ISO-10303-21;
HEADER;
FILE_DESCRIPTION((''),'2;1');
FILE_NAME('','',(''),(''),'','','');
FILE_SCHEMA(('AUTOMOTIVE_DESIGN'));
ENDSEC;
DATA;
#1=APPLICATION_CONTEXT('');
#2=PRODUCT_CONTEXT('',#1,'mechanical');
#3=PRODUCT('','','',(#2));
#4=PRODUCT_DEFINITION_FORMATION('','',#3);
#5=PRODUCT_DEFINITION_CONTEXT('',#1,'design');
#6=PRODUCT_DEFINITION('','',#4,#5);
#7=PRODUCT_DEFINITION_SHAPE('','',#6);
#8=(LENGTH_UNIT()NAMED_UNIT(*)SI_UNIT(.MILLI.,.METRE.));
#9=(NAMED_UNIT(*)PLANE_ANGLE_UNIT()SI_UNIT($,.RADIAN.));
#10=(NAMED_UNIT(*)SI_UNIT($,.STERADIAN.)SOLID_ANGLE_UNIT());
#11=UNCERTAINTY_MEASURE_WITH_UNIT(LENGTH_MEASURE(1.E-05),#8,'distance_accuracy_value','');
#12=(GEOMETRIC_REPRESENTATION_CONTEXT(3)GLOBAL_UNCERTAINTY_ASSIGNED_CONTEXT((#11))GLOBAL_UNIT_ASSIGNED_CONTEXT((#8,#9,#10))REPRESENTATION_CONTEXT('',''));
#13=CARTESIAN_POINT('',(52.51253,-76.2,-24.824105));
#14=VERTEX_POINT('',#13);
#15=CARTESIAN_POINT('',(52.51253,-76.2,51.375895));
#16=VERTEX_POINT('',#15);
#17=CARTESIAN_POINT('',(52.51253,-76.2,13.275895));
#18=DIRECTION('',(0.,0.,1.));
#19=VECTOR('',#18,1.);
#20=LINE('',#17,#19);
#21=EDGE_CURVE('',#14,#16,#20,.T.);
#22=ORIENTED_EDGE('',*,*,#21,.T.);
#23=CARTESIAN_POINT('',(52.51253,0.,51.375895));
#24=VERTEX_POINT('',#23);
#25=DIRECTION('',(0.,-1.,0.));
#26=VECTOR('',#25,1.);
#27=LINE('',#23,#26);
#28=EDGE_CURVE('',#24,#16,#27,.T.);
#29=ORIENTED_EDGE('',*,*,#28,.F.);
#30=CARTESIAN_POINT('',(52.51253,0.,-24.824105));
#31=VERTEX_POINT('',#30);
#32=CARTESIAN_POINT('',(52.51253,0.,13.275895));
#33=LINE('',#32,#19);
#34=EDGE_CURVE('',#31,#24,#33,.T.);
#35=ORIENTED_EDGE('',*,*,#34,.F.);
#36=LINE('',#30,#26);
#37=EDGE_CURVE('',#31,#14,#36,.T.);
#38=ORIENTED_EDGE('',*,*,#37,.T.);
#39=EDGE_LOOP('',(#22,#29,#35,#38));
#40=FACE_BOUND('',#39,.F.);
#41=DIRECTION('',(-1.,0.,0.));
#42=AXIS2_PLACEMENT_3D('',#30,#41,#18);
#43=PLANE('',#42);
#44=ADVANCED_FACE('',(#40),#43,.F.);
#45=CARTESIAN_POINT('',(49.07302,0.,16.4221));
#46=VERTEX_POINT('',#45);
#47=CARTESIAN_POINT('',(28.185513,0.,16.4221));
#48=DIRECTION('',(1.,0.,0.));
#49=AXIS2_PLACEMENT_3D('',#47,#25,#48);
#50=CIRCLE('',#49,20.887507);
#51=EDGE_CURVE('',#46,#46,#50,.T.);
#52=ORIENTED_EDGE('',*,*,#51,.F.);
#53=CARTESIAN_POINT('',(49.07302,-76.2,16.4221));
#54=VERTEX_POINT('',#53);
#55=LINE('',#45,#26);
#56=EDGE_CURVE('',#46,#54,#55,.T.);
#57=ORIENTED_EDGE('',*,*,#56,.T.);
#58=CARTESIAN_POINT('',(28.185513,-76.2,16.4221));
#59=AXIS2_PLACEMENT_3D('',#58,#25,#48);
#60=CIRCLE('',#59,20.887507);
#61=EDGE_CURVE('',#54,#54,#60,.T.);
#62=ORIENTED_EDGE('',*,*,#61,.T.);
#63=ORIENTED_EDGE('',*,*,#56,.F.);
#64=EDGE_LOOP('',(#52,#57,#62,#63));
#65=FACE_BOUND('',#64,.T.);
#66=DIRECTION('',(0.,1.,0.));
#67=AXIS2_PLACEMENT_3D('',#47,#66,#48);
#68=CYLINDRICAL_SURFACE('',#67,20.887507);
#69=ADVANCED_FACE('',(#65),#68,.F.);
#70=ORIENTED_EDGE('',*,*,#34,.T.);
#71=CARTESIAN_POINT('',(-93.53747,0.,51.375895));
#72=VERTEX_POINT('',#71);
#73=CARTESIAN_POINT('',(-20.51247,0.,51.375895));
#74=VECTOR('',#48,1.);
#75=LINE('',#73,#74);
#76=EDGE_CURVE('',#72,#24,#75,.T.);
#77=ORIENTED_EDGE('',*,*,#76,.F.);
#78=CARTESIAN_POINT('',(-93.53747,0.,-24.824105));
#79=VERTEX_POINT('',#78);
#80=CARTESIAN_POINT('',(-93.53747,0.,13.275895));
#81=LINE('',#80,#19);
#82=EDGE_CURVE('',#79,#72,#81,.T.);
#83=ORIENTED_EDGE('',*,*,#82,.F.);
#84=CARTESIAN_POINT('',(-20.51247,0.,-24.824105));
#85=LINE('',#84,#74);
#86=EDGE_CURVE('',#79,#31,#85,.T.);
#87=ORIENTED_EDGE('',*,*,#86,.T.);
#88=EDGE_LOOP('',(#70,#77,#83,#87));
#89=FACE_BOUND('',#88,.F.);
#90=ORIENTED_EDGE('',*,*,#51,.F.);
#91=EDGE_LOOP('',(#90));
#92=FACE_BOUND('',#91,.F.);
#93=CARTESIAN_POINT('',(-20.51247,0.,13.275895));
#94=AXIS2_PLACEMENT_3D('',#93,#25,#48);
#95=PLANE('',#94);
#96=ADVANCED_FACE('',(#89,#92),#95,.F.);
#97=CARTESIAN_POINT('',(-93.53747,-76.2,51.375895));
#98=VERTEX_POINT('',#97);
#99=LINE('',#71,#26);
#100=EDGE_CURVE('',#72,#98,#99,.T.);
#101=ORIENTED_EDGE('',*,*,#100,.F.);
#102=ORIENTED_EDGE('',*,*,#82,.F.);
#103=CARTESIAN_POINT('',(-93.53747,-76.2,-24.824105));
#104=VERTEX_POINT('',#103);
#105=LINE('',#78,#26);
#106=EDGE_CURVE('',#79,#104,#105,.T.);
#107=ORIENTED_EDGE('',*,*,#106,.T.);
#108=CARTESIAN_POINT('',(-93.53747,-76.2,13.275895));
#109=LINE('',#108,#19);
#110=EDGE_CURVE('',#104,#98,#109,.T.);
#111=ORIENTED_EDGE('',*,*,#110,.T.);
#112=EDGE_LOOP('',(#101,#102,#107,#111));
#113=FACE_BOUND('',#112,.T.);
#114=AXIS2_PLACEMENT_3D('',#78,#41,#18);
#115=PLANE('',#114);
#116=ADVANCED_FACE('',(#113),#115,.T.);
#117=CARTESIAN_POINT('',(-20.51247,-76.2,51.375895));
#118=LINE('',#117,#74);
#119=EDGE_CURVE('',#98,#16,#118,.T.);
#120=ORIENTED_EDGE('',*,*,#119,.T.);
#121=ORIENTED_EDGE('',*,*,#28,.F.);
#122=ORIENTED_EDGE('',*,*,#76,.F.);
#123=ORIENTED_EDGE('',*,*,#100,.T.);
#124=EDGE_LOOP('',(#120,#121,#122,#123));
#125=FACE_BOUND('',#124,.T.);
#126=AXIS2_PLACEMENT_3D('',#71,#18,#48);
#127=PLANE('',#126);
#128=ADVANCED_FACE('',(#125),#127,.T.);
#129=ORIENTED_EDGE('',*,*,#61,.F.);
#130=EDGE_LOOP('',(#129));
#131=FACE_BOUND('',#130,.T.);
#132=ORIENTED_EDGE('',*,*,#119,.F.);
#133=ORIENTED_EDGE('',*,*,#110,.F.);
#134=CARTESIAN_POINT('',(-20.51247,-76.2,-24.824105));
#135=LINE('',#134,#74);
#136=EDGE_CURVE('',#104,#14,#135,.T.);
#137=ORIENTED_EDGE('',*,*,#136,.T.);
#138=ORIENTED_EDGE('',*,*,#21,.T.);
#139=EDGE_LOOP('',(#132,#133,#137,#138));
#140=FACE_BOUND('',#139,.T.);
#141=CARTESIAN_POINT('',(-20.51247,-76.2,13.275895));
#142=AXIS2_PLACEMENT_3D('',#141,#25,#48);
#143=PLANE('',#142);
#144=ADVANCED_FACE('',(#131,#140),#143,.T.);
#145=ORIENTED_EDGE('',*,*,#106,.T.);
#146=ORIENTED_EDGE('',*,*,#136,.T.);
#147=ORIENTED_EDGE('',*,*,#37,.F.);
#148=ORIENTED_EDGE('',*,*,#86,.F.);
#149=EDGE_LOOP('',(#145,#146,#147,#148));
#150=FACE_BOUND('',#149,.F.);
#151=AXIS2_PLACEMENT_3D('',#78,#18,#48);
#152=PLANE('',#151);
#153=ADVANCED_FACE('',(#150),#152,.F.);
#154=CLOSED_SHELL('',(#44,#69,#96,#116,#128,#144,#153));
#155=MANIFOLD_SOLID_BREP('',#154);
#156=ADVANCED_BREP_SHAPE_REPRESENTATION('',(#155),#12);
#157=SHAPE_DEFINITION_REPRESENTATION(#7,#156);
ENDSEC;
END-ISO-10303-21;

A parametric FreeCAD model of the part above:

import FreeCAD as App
import Part
import Sketcher
from FreeCAD import Vector
Q = App.Units.Quantity

doc = App.newDocument("Part")
body = doc.addObject("PartDesign::Body", "Body")

sketch1 = body.newObject("Sketcher::SketchObject", "Sketch")
sketch1.AttachmentSupport = (doc.getObject("XZ_Plane"), [""])
sketch1.MapMode = "FlatFace"
sketch1.addGeometry([
    Part.LineSegment(Vector(-93.53747, 51.375895, 0), Vector(-93.53747, -24.824105, 0)),
    Part.LineSegment(Vector(-93.53747, -24.824105, 0), Vector(52.51253, -24.824105, 0)),
    Part.LineSegment(Vector(52.51253, -24.824105, 0), Vector(52.51253, 51.375895, 0)),
    Part.LineSegment(Vector(52.51253, 51.375895, 0), Vector(-93.53747, 51.375895, 0)),
], False)
sketch1.addConstraint([
    Sketcher.Constraint("Coincident", 0, 2, 1, 1),
    Sketcher.Constraint("Coincident", 1, 2, 2, 1),
    Sketcher.Constraint("Coincident", 2, 2, 3, 1),
    Sketcher.Constraint("Coincident", 3, 2, 0, 1),
    Sketcher.Constraint("Vertical", 0),
    Sketcher.Constraint("Horizontal", 1),
    Sketcher.Constraint("Vertical", 2),
    Sketcher.Constraint("Horizontal", 3),
    Sketcher.Constraint("DistanceY", 0, 2, 0, 1, Q("3 in")),
    Sketcher.Constraint("DistanceX", 1, 1, 1, 2, Q("5.75 in")),
    Sketcher.Constraint("DistanceX", 0, 2, -1, 1, 93.53747),
    Sketcher.Constraint("DistanceY", 0, 2, -1, 1, 24.824105),
])
pad1 = body.newObject("PartDesign::Pad", "Pad")
pad1.Profile = sketch1
pad1.Length = Q("3 in")

sketch2 = body.newObject("Sketcher::SketchObject", "Sketch001")
sketch2.AttachmentSupport = (doc.getObject("XZ_Plane"), [""])
sketch2.MapMode = "FlatFace"
sketch2.addGeometry(Part.Circle(Vector(28.185513, 16.4221, 0), Vector(0, 0, 1), 20.887507), False)
sketch2.addConstraint([
    Sketcher.Constraint("Diameter", 0, 41.775014),
    Sketcher.Constraint("DistanceY", -1, 1, 0, 3, 16.4221),
    Sketcher.Constraint("DistanceX", -1, 1, 0, 3, 28.185513),
])
pocket1 = body.newObject("PartDesign::Pocket", "Pocket")
pocket1.Profile = sketch2
pocket1.Length = Q("3 in")
pocket1.Reversed = True

sketch3 = body.newObject("Sketcher::SketchObject", "Sketch002")
sketch3.AttachmentSupport = (doc.getObject("XZ_Plane"), [""])
sketch3.MapMode = "FlatFace"
sketch3.addGeometry([
    Part.LineSegment(Vector(-65.00484, 25.4, 0), Vector(-65.00484, 0, 0)),
    Part.LineSegment(Vector(-65.00484, 0, 0), Vector(-39.60484, 0, 0)),
    Part.LineSegment(Vector(-39.60484, 0, 0), Vector(-39.60484, 25.4, 0)),
    Part.LineSegment(Vector(-39.60484, 25.4, 0), Vector(-65.00484, 25.4, 0)),
], False)
sketch3.addConstraint([
    Sketcher.Constraint("Coincident", 0, 2, 1, 1),
    Sketcher.Constraint("Coincident", 1, 2, 2, 1),
    Sketcher.Constraint("Coincident", 2, 2, 3, 1),
    Sketcher.Constraint("Coincident", 3, 2, 0, 1),
    Sketcher.Constraint("Vertical", 0),
    Sketcher.Constraint("Horizontal", 1),
    Sketcher.Constraint("Vertical", 2),
    Sketcher.Constraint("Horizontal", 3),
    Sketcher.Constraint("PointOnObject", 0, 2, -1),
    Sketcher.Constraint("Equal", 3, 0),
    Sketcher.Constraint("DistanceX", 1, 1, 1, 2, Q("1 in")),
    Sketcher.Constraint("DistanceX", 0, 2, -1, 1, 65.00484),
])
pad2 = body.newObject("PartDesign::Pad", "Pad001")
pad2.Profile = sketch3
pad2.Length = Q("3 in")

doc.recompute()
